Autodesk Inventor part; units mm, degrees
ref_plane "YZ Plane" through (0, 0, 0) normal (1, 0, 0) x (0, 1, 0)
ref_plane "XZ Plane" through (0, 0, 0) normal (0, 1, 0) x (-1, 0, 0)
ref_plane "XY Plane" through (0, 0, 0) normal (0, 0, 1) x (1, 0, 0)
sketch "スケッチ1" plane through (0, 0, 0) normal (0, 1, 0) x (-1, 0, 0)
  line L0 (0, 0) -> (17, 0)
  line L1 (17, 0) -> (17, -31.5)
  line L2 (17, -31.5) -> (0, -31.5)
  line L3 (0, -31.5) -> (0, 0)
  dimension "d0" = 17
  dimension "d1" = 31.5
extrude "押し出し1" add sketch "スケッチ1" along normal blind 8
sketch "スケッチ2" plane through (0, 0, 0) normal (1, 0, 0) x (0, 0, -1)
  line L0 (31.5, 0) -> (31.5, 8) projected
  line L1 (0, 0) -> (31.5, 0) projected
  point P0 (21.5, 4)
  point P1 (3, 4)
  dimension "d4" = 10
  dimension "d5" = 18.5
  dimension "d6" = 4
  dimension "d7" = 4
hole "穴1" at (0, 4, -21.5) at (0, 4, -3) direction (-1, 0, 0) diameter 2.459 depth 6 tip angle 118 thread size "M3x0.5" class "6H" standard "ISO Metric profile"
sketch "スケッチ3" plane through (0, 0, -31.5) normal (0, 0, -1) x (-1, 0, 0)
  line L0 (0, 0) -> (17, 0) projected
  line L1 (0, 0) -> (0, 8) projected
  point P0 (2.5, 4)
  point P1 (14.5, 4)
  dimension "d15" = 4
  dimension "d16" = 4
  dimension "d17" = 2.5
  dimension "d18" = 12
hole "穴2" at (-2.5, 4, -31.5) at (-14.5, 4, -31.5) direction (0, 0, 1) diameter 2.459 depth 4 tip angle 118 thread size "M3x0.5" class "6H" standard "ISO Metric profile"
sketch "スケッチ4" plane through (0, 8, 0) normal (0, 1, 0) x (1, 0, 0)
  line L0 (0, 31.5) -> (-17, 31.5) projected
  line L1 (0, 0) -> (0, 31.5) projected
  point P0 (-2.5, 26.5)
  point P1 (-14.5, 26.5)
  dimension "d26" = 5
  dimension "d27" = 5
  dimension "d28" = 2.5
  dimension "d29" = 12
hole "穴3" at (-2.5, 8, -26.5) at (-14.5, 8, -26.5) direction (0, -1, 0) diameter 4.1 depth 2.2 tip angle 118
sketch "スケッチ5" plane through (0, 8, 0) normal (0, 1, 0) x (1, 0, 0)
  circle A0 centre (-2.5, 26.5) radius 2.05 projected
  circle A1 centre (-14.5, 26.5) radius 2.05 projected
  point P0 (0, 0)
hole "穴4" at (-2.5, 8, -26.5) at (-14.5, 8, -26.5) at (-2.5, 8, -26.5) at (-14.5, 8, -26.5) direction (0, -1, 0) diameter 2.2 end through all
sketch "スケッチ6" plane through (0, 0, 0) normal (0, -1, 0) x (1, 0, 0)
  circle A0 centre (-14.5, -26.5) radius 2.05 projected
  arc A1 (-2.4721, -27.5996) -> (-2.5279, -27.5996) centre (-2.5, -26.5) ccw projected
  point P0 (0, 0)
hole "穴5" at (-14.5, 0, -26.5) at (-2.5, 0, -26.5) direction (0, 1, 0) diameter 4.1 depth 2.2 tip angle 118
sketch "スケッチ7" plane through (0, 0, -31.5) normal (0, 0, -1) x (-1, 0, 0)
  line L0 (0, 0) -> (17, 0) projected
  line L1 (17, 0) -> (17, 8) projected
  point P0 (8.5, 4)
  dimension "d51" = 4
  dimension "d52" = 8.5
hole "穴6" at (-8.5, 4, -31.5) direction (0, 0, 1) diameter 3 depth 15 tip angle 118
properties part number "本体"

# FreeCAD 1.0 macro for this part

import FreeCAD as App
import Part
import Sketcher

V = App.Vector
Q = App.Units.Quantity


def add_polygon(sketch, points):
    """Adds a closed chain of lines whose ends are joined by coincident constraints."""
    first, n = sketch.GeometryCount, len(points)
    for a, b in zip(points, points[1:] + points[:1]):
        sketch.addGeometry(Part.LineSegment(App.Vector(*a, 0), App.Vector(*b, 0)), False)
    for i in range(n):
        sketch.addConstraint(Sketcher.Constraint("Coincident", first + i, 2, first + (i + 1) % n, 1))

doc = App.newDocument("Part")
body = doc.addObject("PartDesign::Body", "Body")

# Sketch on XZ plane
sketch1 = body.newObject("Sketcher::SketchObject", "Sketch")
sketch1.AttachmentSupport = (doc.getObject("XZ_Plane"), [""])
sketch1.MapMode = "FlatFace"
add_polygon(sketch1, [(-17, 0), (0, 0), (0, -32), (-17, -32)])  # lines 0-3
sketch1.addConstraint([
    Sketcher.Constraint("Horizontal", 0),
    Sketcher.Constraint("Vertical", 1),
    Sketcher.Constraint("Horizontal", 2),
    Sketcher.Constraint("Vertical", 3),
    Sketcher.Constraint("Coincident", 0, 2, -1, 1),
    Sketcher.Constraint("DistanceX", 0, 1, 0, 2, Q("17 mm")),
    Sketcher.Constraint("DistanceY", 1, 2, 1, 1, Q("31.5 mm")),
])
pad1 = body.newObject("PartDesign::Pad", "Pad")
pad1.Profile = sketch1
pad1.Length = 8
pad1.Reversed = True

# Sketch on YZ plane
sketch2 = body.newObject("Sketcher::SketchObject", "Sketch001")
sketch2.AttachmentSupport = (doc.getObject("YZ_Plane"), [""])
sketch2.MapMode = "FlatFace"
sketch2.addGeometry([
    Part.Circle(V(4, -21.5, 0), V(0, 0, 1), 1.2),
    Part.Circle(V(4, -3, 0), V(0, 0, 1), 1.2),
], False)
sketch2.addConstraint([
    Sketcher.Constraint("Equal", 0, 1),
    Sketcher.Constraint("Vertical", 0, 3, 1, 3),
    Sketcher.Constraint("Diameter", 0, Q("2.459 mm")),
    Sketcher.Constraint("DistanceX", -1, 1, 0, 3, Q("4 mm")),
    Sketcher.Constraint("DistanceY", 1, 3, -1, 1, Q("3 mm")),
    Sketcher.Constraint("DistanceY", 0, 3, -1, 1, Q("21.5 mm")),
])
doc.recompute()
hole = body.newObject("PartDesign::Hole", "Hole")
hole.Profile = sketch2
hole.ThreadType = "None"
hole.Diameter = 2.459
hole.DepthType = "Dimension"
hole.Depth = 6
hole.DrillPoint = "Angled"
hole.DrillPointAngle = 118

# Sketch on XY plane
sketch3 = body.newObject("Sketcher::SketchObject", "Sketch002")
sketch3.AttachmentSupport = (doc.getObject("XY_Plane"), [""])
sketch3.MapMode = "FlatFace"
sketch3.AttachmentOffset = App.Placement(V(0, 0, -31.5), App.Rotation())
sketch3.addGeometry([
    Part.Circle(V(-2.5, 4, 0), V(0, 0, 1), 1.2),
    Part.Circle(V(-14.5, 4, 0), V(0, 0, 1), 1.2),
], False)
sketch3.addConstraint([
    Sketcher.Constraint("Equal", 0, 1),
    Sketcher.Constraint("Horizontal", 0, 3, 1, 3),
    Sketcher.Constraint("Diameter", 0, Q("2.459 mm")),
    Sketcher.Constraint("DistanceY", -1, 1, 0, 3, Q("4 mm")),
    Sketcher.Constraint("DistanceX", 1, 3, 0, 3, Q("12 mm")),
    Sketcher.Constraint("DistanceX", 0, 3, -1, 1, Q("2.5 mm")),
])
doc.recompute()
hole2 = body.newObject("PartDesign::Hole", "Hole001")
hole2.Profile = sketch3
hole2.ThreadType = "None"
hole2.Diameter = 2.459
hole2.DepthType = "Dimension"
hole2.Depth = 4
hole2.DrillPoint = "Angled"
hole2.DrillPointAngle = 118
hole2.Reversed = True

# Sketch on XZ plane
sketch4 = body.newObject("Sketcher::SketchObject", "Sketch003")
sketch4.AttachmentSupport = (doc.getObject("XZ_Plane"), [""])
sketch4.MapMode = "FlatFace"
sketch4.AttachmentOffset = App.Placement(V(0, 0, -8), App.Rotation())
sketch4.addGeometry([
    Part.Circle(V(-2.5, -26.5, 0), V(0, 0, 1), 2),
    Part.Circle(V(-14.5, -26.5, 0), V(0, 0, 1), 2),
], False)
sketch4.addConstraint([
    Sketcher.Constraint("Equal", 0, 1),
    Sketcher.Constraint("Horizontal", 0, 3, 1, 3),
    Sketcher.Constraint("Diameter", 0, Q("4.1 mm")),
    Sketcher.Constraint("DistanceX", 1, 3, 0, 3, Q("12 mm")),
    Sketcher.Constraint("DistanceX", 0, 3, -1, 1, Q("2.5 mm")),
    Sketcher.Constraint("DistanceY", 0, 3, -1, 1, Q("26.5 mm")),
])
doc.recompute()
hole3 = body.newObject("PartDesign::Hole", "Hole002")
hole3.Profile = sketch4
hole3.ThreadType = "None"
hole3.Diameter = 4.1
hole3.DepthType = "Dimension"
hole3.Depth = 2.2
hole3.DrillPoint = "Angled"
hole3.DrillPointAngle = 118
hole3.Reversed = True

# Sketch on XZ plane
sketch5 = body.newObject("Sketcher::SketchObject", "Sketch004")
sketch5.AttachmentSupport = (doc.getObject("XZ_Plane"), [""])
sketch5.MapMode = "FlatFace"
sketch5.AttachmentOffset = App.Placement(V(0, 0, -8), App.Rotation())
sketch5.addGeometry([
    Part.Circle(V(-2.5, -26.5, 0), V(0, 0, 1), 1.1),
    Part.Circle(V(-14.5, -26.5, 0), V(0, 0, 1), 1.1),
    Part.Circle(V(-2.5, -26.5, 0), V(0, 0, 1), 1.1),
    Part.Circle(V(-14.5, -26.5, 0), V(0, 0, 1), 1.1),
], False)
sketch5.addConstraint([
    Sketcher.Constraint("Coincident", 2, 3, 0, 3),
    Sketcher.Constraint("Coincident", 3, 3, 1, 3),
    Sketcher.Constraint("Equal", 0, 1),
    Sketcher.Constraint("Equal", 1, 2),
    Sketcher.Constraint("Equal", 2, 3),
    Sketcher.Constraint("Horizontal", 0, 3, 1, 3),
    Sketcher.Constraint("Diameter", 0, Q("2.2 mm")),
    Sketcher.Constraint("DistanceX", 1, 3, 0, 3, Q("12 mm")),
    Sketcher.Constraint("DistanceX", 0, 3, -1, 1, Q("2.5 mm")),
    Sketcher.Constraint("DistanceY", 0, 3, -1, 1, Q("26.5 mm")),
])
doc.recompute()
hole4 = body.newObject("PartDesign::Hole", "Hole003")
hole4.Profile = sketch5
hole4.ThreadType = "None"
hole4.Diameter = 2.2
hole4.DepthType = "ThroughAll"
hole4.Reversed = True

# Sketch on XZ plane
sketch6 = body.newObject("Sketcher::SketchObject", "Sketch005")
sketch6.AttachmentSupport = (doc.getObject("XZ_Plane"), [""])
sketch6.MapMode = "FlatFace"
sketch6.addGeometry([
    Part.Circle(V(-14.5, -26.5, 0), V(0, 0, 1), 2),
    Part.Circle(V(-2.5, -26.5, 0), V(0, 0, 1), 2),
], False)
sketch6.addConstraint([
    Sketcher.Constraint("Equal", 0, 1),
    Sketcher.Constraint("Horizontal", 0, 3, 1, 3),
    Sketcher.Constraint("Diameter", 0, Q("4.1 mm")),
    Sketcher.Constraint("DistanceX", 0, 3, 1, 3, Q("12 mm")),
    Sketcher.Constraint("DistanceX", 0, 3, -1, 1, Q("14.5 mm")),
    Sketcher.Constraint("DistanceY", 0, 3, -1, 1, Q("26.5 mm")),
])
doc.recompute()
hole5 = body.newObject("PartDesign::Hole", "Hole004")
hole5.Profile = sketch6
hole5.ThreadType = "None"
hole5.Diameter = 4.1
hole5.DepthType = "Dimension"
hole5.Depth = 2.2
hole5.DrillPoint = "Angled"
hole5.DrillPointAngle = 118

# Sketch on XY plane
sketch7 = body.newObject("Sketcher::SketchObject", "Sketch006")
sketch7.AttachmentSupport = (doc.getObject("XY_Plane"), [""])
sketch7.MapMode = "FlatFace"
sketch7.AttachmentOffset = App.Placement(V(0, 0, -31.5), App.Rotation())
sketch7.addGeometry(Part.Circle(V(-8.5, 4, 0), V(0, 0, 1), 1.5), False)
sketch7.addConstraint([
    Sketcher.Constraint("Diameter", 0, Q("3 mm")),
    Sketcher.Constraint("DistanceY", -1, 1, 0, 3, Q("4 mm")),
    Sketcher.Constraint("DistanceX", 0, 3, -1, 1, Q("8.5 mm")),
])
doc.recompute()
hole6 = body.newObject("PartDesign::Hole", "Hole005")
hole6.Profile = sketch7
hole6.ThreadType = "None"
hole6.Diameter = 3
hole6.DepthType = "Dimension"
hole6.Depth = 15
hole6.DrillPoint = "Angled"
hole6.DrillPointAngle = 118
hole6.Reversed = True

doc.recompute()
